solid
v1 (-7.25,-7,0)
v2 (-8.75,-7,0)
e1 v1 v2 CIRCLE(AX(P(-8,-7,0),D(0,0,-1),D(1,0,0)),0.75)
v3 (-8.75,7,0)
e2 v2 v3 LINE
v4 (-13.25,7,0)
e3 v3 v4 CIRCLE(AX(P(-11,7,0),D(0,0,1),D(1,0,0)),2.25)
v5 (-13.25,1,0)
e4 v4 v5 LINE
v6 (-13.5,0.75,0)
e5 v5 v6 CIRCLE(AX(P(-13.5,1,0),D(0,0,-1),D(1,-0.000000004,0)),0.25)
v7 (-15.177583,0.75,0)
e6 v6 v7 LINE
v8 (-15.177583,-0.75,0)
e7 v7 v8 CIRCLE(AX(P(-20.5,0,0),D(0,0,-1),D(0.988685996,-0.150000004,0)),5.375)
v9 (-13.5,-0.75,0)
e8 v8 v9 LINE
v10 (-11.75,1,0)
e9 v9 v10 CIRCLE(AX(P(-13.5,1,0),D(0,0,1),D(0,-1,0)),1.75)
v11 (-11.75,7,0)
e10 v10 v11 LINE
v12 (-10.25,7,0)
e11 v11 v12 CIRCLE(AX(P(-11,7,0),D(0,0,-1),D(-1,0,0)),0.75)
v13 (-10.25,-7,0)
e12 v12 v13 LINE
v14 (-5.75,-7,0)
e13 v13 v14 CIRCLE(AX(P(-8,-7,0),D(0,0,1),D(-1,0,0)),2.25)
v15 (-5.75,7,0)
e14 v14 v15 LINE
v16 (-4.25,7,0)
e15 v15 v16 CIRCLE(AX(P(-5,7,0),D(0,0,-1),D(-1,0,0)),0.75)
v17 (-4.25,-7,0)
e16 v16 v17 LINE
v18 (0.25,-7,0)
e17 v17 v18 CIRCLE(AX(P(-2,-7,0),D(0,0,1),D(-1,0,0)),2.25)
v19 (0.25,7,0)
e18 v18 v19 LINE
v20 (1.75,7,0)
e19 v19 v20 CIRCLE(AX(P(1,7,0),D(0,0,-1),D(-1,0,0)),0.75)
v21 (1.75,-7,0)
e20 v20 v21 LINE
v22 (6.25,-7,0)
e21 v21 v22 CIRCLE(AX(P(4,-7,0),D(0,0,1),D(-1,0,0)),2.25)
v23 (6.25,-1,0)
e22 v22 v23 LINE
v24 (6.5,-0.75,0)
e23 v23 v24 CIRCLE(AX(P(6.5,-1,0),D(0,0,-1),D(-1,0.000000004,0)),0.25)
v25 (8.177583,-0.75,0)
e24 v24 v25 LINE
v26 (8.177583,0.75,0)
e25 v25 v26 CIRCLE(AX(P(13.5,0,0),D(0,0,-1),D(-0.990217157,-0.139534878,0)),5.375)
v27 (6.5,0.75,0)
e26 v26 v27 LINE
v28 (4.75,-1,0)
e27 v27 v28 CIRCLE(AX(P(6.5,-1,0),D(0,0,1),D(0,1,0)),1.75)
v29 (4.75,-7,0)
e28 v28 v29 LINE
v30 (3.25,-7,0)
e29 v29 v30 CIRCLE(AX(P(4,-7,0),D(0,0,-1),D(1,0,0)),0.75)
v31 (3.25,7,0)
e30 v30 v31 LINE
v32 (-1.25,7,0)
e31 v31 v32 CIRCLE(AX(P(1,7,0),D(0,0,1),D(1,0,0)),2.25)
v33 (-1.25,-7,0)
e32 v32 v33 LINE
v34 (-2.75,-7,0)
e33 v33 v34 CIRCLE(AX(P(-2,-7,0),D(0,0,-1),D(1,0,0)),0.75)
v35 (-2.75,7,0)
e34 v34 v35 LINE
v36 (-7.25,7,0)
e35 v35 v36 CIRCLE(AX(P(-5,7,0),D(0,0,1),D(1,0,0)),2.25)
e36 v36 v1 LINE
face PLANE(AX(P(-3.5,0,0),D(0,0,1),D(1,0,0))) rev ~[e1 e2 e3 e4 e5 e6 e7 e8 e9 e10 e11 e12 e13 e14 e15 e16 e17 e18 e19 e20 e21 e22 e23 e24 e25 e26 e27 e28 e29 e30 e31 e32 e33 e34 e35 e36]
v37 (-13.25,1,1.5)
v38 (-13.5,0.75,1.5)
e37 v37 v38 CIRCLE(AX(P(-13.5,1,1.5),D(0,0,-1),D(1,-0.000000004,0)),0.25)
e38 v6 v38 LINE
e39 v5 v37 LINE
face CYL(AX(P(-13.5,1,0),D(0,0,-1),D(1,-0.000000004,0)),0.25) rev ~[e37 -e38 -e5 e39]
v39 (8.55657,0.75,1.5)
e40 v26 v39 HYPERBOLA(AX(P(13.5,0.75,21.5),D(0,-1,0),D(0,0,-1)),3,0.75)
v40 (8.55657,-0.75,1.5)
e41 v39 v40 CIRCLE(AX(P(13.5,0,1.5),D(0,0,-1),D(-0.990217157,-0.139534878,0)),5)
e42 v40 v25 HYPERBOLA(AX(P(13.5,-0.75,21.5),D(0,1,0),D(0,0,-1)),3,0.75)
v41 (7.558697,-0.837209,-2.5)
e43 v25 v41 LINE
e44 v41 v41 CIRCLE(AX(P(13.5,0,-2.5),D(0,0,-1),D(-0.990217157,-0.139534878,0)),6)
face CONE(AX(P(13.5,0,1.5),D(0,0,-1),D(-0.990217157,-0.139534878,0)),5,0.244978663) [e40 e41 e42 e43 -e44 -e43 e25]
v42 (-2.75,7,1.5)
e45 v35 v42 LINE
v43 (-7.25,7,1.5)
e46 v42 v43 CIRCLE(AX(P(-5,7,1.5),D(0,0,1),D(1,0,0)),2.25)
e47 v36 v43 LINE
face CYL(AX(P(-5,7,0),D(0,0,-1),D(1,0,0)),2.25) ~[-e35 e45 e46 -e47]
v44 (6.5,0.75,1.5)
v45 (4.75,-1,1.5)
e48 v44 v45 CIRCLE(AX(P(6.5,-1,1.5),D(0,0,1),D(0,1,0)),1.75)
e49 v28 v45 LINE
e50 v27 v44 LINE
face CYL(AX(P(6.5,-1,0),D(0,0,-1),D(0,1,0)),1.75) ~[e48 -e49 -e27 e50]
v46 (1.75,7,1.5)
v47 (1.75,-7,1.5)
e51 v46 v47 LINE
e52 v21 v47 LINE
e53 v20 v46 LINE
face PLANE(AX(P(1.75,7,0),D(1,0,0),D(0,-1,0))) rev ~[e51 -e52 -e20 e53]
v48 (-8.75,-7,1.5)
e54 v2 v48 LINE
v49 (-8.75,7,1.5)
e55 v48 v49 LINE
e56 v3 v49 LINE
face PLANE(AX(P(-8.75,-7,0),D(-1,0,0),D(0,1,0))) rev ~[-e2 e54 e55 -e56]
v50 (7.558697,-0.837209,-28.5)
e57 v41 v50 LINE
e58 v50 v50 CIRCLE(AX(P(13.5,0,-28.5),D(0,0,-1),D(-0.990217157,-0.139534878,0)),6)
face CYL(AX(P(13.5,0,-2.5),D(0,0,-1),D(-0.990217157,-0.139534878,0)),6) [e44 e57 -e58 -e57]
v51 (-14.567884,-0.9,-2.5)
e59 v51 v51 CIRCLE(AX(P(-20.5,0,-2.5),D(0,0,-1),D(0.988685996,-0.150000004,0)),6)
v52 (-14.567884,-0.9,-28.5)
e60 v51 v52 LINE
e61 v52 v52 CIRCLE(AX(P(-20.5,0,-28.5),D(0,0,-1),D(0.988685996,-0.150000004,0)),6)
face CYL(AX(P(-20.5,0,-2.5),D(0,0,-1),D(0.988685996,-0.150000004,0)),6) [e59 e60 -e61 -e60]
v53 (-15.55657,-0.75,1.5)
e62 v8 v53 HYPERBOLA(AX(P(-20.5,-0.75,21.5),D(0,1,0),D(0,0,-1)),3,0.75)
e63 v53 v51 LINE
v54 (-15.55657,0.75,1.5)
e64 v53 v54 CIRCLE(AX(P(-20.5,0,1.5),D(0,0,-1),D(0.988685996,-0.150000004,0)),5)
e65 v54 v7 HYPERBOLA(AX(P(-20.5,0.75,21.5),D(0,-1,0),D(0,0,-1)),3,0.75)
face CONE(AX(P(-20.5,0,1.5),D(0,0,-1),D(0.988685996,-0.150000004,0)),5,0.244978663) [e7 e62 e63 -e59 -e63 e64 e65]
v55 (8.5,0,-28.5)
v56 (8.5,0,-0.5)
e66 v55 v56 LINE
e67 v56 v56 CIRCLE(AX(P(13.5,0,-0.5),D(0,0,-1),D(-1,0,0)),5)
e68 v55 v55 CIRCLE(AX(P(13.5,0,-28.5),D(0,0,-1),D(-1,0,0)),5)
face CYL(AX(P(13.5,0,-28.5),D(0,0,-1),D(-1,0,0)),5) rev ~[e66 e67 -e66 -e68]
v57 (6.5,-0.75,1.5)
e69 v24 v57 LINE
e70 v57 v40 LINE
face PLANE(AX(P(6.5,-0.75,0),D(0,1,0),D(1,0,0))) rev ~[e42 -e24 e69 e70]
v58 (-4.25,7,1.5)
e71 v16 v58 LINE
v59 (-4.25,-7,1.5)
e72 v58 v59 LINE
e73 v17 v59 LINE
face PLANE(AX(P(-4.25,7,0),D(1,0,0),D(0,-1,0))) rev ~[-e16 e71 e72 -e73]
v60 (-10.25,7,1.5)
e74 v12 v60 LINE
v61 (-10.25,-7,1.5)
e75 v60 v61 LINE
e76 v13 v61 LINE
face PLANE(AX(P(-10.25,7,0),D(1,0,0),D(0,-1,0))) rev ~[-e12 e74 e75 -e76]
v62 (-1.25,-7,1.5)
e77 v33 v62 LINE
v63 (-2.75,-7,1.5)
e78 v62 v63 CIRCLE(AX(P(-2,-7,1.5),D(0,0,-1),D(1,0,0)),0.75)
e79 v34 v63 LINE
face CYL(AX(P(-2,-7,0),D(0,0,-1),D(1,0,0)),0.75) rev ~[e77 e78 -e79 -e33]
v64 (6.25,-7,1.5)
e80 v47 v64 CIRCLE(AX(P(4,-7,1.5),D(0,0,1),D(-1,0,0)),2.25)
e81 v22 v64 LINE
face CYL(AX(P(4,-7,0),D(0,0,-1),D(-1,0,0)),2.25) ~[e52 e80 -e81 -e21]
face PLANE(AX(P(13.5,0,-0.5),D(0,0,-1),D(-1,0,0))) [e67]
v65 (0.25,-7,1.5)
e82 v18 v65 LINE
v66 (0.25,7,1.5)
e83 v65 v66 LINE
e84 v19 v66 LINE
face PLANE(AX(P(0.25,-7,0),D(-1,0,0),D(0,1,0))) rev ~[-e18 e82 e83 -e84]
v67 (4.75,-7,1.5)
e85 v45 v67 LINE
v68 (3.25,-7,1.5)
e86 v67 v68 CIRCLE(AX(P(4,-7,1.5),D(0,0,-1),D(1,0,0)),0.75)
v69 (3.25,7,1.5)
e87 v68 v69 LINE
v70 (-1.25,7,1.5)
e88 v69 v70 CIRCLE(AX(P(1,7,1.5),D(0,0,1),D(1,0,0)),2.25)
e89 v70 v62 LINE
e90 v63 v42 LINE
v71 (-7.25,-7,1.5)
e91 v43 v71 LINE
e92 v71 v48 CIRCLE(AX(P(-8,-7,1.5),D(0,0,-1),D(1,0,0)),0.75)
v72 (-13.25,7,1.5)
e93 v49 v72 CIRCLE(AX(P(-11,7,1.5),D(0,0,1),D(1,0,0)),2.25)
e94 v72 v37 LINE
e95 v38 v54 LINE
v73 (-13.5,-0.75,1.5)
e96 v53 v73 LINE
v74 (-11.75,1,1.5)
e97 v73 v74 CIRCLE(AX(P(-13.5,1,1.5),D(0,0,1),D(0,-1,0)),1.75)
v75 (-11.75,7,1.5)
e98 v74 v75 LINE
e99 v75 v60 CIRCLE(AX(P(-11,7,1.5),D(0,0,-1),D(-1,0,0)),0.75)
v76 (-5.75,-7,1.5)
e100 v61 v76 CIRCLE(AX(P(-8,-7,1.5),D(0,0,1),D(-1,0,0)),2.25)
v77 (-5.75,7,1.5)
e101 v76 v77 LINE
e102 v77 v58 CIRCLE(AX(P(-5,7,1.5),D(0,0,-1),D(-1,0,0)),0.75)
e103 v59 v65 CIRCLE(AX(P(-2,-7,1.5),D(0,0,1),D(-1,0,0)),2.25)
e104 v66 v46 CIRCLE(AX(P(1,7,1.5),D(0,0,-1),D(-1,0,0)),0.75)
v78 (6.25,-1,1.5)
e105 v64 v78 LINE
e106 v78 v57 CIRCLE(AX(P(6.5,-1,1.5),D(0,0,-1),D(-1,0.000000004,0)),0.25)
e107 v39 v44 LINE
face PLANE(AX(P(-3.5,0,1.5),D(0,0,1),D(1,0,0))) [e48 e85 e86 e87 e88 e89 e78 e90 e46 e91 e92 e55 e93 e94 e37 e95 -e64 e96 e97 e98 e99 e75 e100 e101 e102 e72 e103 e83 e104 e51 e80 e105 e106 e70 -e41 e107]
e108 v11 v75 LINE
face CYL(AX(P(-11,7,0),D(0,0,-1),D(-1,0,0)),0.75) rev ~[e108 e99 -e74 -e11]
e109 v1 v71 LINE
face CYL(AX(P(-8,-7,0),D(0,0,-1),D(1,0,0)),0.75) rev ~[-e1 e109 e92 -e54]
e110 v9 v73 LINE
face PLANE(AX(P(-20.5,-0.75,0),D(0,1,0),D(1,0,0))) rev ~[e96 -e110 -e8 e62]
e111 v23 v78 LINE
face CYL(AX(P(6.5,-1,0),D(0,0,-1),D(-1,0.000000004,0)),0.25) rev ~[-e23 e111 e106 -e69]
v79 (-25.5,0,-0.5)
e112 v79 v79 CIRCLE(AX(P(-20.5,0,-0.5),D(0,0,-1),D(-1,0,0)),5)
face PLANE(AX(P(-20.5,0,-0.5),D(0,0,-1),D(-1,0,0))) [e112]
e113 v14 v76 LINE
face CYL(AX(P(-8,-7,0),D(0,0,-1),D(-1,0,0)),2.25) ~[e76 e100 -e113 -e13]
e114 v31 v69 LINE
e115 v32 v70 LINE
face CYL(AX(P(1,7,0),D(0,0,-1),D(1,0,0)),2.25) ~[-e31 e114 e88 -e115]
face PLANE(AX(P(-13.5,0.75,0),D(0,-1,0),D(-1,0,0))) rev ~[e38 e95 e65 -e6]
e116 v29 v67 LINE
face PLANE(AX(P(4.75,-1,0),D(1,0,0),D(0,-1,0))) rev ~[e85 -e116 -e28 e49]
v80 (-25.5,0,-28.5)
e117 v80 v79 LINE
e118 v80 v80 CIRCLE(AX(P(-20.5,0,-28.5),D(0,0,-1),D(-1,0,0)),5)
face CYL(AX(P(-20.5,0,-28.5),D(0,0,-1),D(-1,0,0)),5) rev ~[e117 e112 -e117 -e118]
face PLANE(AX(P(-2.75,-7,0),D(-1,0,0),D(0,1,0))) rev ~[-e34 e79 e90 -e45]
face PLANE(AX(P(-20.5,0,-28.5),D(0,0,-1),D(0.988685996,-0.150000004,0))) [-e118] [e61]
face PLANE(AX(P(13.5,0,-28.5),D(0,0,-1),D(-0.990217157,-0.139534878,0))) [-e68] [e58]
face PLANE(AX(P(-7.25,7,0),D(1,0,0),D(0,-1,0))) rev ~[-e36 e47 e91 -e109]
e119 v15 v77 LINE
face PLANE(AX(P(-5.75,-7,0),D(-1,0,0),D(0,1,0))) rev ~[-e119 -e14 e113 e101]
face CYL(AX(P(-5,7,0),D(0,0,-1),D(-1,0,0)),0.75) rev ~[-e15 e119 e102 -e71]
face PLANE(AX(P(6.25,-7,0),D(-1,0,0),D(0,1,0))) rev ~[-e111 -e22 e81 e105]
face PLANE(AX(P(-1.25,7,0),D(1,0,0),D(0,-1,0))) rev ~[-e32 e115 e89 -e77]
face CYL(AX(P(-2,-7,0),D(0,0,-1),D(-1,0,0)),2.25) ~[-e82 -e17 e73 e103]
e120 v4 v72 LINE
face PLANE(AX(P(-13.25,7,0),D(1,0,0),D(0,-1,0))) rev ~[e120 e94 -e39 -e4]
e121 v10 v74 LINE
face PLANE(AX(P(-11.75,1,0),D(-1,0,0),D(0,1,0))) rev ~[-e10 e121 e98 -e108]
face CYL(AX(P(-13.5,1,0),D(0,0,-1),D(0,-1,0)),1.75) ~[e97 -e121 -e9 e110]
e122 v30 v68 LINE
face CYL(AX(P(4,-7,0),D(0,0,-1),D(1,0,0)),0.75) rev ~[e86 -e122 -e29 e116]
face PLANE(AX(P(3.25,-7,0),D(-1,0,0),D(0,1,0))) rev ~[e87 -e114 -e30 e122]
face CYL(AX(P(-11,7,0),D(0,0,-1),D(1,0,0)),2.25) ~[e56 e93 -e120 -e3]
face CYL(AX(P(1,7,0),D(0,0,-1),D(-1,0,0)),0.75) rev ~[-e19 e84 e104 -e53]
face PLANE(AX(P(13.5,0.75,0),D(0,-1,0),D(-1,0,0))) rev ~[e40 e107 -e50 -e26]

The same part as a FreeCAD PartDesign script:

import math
import FreeCAD as App
import Part
import Sketcher

V = App.Vector
Q = App.Units.Quantity

doc = App.newDocument("Part")
body = doc.addObject("PartDesign::Body", "Body")

sketch1 = body.newObject("Sketcher::SketchObject", "Sketch")
sketch1.AttachmentSupport = (doc.getObject("XY_Plane"), [""])
sketch1.MapMode = "FlatFace"
sketch1.addGeometry([
    Part.LineSegment(V(-20.5, -0.75, 0), V(-13.5, -0.75, 0)),
    Part.ArcOfCircle(Part.Circle(V(-13.5, 1, 0), V(0, 0, 1), 1.75), math.radians(-90), math.radians(0)),
    Part.LineSegment(V(-11.75, 1, 0), V(-11.75, 7, 0)),
    Part.ArcOfCircle(Part.Circle(V(-11, 7, 0), V(0, 0, 1), 0.75), math.radians(0), math.radians(180)),
    Part.LineSegment(V(-10.25, 7, 0), V(-10.25, -7, 0)),
    Part.ArcOfCircle(Part.Circle(V(-8, -7, 0), V(0, 0, 1), 2.25), math.radians(180), math.radians(360)),
    Part.LineSegment(V(-5.75, -7, 0), V(-5.75, 7, 0)),
    Part.ArcOfCircle(Part.Circle(V(-5, 7, 0), V(0, 0, 1), 0.75), math.radians(0), math.radians(180)),
    Part.LineSegment(V(-4.25, 7, 0), V(-4.25, -7, 0)),
    Part.ArcOfCircle(Part.Circle(V(-2, -7, 0), V(0, 0, 1), 2.25), math.radians(180), math.radians(360)),
    Part.LineSegment(V(0.25, -7, 0), V(0.25, 7, 0)),
    Part.ArcOfCircle(Part.Circle(V(1, 7, 0), V(0, 0, 1), 0.75), math.radians(0), math.radians(180)),
    Part.LineSegment(V(1.75, 7, 0), V(1.75, -7, 0)),
    Part.ArcOfCircle(Part.Circle(V(4, -7, 0), V(0, 0, 1), 2.25), math.radians(180), math.radians(360)),
    Part.LineSegment(V(6.25, -7, 0), V(6.25, -1, 0)),
    Part.ArcOfCircle(Part.Circle(V(6.5, -1, 0), V(0, 0, 1), 0.25), math.radians(90), math.radians(180)),
    Part.LineSegment(V(6.5, -0.75, 0), V(13.5, -0.75, 0)),
    Part.ArcOfCircle(Part.Circle(V(13.5, 0, 0), V(0, 0, 1), 0.75), math.radians(-90), math.radians(90)),
    Part.LineSegment(V(13.5, 0.75, 0), V(6.5, 0.75, 0)),
    Part.ArcOfCircle(Part.Circle(V(6.5, -1, 0), V(0, 0, 1), 1.75), math.radians(90), math.radians(180)),
    Part.LineSegment(V(4.75, -1, 0), V(4.75, -7, 0)),
    Part.ArcOfCircle(Part.Circle(V(4, -7, 0), V(0, 0, 1), 0.75), math.radians(180), math.radians(360)),
    Part.LineSegment(V(3.25, -7, 0), V(3.25, 7, 0)),
    Part.ArcOfCircle(Part.Circle(V(1, 7, 0), V(0, 0, 1), 2.25), math.radians(0), math.radians(180)),
    Part.LineSegment(V(-1.25, 7, 0), V(-1.25, -7, 0)),
    Part.ArcOfCircle(Part.Circle(V(-2, -7, 0), V(0, 0, 1), 0.75), math.radians(180), math.radians(360)),
    Part.LineSegment(V(-2.75, -7, 0), V(-2.75, 7, 0)),
    Part.ArcOfCircle(Part.Circle(V(-5, 7, 0), V(0, 0, 1), 2.25), math.radians(0), math.radians(180)),
    Part.LineSegment(V(-7.25, 7, 0), V(-7.25, -7, 0)),
    Part.ArcOfCircle(Part.Circle(V(-8, -7, 0), V(0, 0, 1), 0.75), math.radians(180), math.radians(360)),
    Part.LineSegment(V(-8.75, -7, 0), V(-8.75, 7, 0)),
    Part.ArcOfCircle(Part.Circle(V(-11, 7, 0), V(0, 0, 1), 2.25), math.radians(0), math.radians(180)),
    Part.LineSegment(V(-13.25, 7, 0), V(-13.25, 1, 0)),
    Part.ArcOfCircle(Part.Circle(V(-13.5, 1, 0), V(0, 0, 1), 0.25), math.radians(-90), math.radians(0)),
    Part.LineSegment(V(-13.5, 0.75, 0), V(-20.5, 0.75, 0)),
    Part.ArcOfCircle(Part.Circle(V(-20.5, 0, 0), V(0, 0, 1), 0.75), math.radians(90), math.radians(270)),
], False)
sketch1.addConstraint([
    Sketcher.Constraint("Tangent", 0, 2, 1, 1),
    Sketcher.Constraint("Tangent", 1, 2, 2, 1),
    Sketcher.Constraint("Tangent", 2, 2, 3, 2),
    Sketcher.Constraint("Tangent", 3, 1, 4, 1),
    Sketcher.Constraint("Tangent", 4, 2, 5, 1),
    Sketcher.Constraint("Tangent", 5, 2, 6, 1),
    Sketcher.Constraint("Tangent", 6, 2, 7, 2),
    Sketcher.Constraint("Tangent", 7, 1, 8, 1),
    Sketcher.Constraint("Tangent", 8, 2, 9, 1),
    Sketcher.Constraint("Tangent", 9, 2, 10, 1),
    Sketcher.Constraint("Tangent", 10, 2, 11, 2),
    Sketcher.Constraint("Tangent", 11, 1, 12, 1),
    Sketcher.Constraint("Tangent", 12, 2, 13, 1),
    Sketcher.Constraint("Tangent", 13, 2, 14, 1),
    Sketcher.Constraint("Tangent", 14, 2, 15, 2),
    Sketcher.Constraint("Tangent", 15, 1, 16, 1),
    Sketcher.Constraint("Tangent", 16, 2, 17, 1),
    Sketcher.Constraint("Tangent", 17, 2, 18, 1),
    Sketcher.Constraint("Tangent", 18, 2, 19, 1),
    Sketcher.Constraint("Tangent", 19, 2, 20, 1),
    Sketcher.Constraint("Tangent", 20, 2, 21, 2),
    Sketcher.Constraint("Tangent", 21, 1, 22, 1),
    Sketcher.Constraint("Tangent", 22, 2, 23, 1),
    Sketcher.Constraint("Tangent", 23, 2, 24, 1),
    Sketcher.Constraint("Tangent", 24, 2, 25, 2),
    Sketcher.Constraint("Tangent", 25, 1, 26, 1),
    Sketcher.Constraint("Tangent", 26, 2, 27, 1),
    Sketcher.Constraint("Tangent", 27, 2, 28, 1),
    Sketcher.Constraint("Tangent", 28, 2, 29, 2),
    Sketcher.Constraint("Tangent", 29, 1, 30, 1),
    Sketcher.Constraint("Tangent", 30, 2, 31, 1),
    Sketcher.Constraint("Tangent", 31, 2, 32, 1),
    Sketcher.Constraint("Tangent", 32, 2, 33, 2),
    Sketcher.Constraint("Tangent", 33, 1, 34, 1),
    Sketcher.Constraint("Tangent", 34, 2, 35, 1),
    Sketcher.Constraint("Tangent", 35, 2, 0, 1),
    Sketcher.Constraint("Horizontal", 0),
    Sketcher.Constraint("Vertical", 2),
    Sketcher.Constraint("Vertical", 4),
    Sketcher.Constraint("Vertical", 6),
    Sketcher.Constraint("Vertical", 8),
    Sketcher.Constraint("Vertical", 10),
    Sketcher.Constraint("Vertical", 12),
    Sketcher.Constraint("Vertical", 14),
    Sketcher.Constraint("Horizontal", 16),
    Sketcher.Constraint("Horizontal", 18),
    Sketcher.Constraint("Vertical", 20),
    Sketcher.Constraint("Vertical", 22),
    Sketcher.Constraint("Vertical", 24),
    Sketcher.Constraint("Vertical", 26),
    Sketcher.Constraint("Vertical", 28),
    Sketcher.Constraint("Vertical", 30),
    Sketcher.Constraint("Vertical", 32),
    Sketcher.Constraint("Horizontal", 34),
    Sketcher.Constraint("Coincident", 19, 3, 15, 3),
    Sketcher.Constraint("Coincident", 21, 3, 13, 3),
    Sketcher.Constraint("Coincident", 23, 3, 11, 3),
    Sketcher.Constraint("Coincident", 25, 3, 9, 3),
    Sketcher.Constraint("Coincident", 27, 3, 7, 3),
    Sketcher.Constraint("Coincident", 29, 3, 5, 3),
    Sketcher.Constraint("Coincident", 31, 3, 3, 3),
    Sketcher.Constraint("Coincident", 33, 3, 1, 3),
    Sketcher.Constraint("Equal", 3, 7),
    Sketcher.Constraint("Equal", 5, 9),
    Sketcher.Constraint("Equal", 7, 11),
    Sketcher.Constraint("Equal", 9, 13),
    Sketcher.Constraint("Equal", 11, 17),
    Sketcher.Constraint("Equal", 1, 19),
    Sketcher.Constraint("Equal", 17, 21),
    Sketcher.Constraint("Symmetric", 0, 2, 17, 2, -1, 1),
    Sketcher.Constraint("PointOnObject", 17, 3, -1),
    Sketcher.Constraint("Horizontal", 3, 3, 7, 3),
    Sketcher.Constraint("Horizontal", 5, 3, 9, 3),
    Sketcher.Constraint("Horizontal", 7, 3, 11, 3),
    Sketcher.Constraint("Horizontal", 9, 3, 13, 3),
    Sketcher.Constraint("Equal", 0, 16),
    Sketcher.Constraint("Equal", 2, 14),
    Sketcher.Constraint("DistanceX", 0, 1, 0, 2, Q("7 mm")),
    Sketcher.Constraint("DistanceY", 2, 1, 2, 2, Q("6 mm")),
    Sketcher.Constraint("DistanceY", 4, 2, 4, 1, Q("14 mm")),
    Sketcher.Constraint("Radius", 1, Q("1.75 mm")),
])
pad1 = body.newObject("PartDesign::Pad", "Pad")
pad1.Profile = sketch1
pad1.Length = 1.5

sketch2 = body.newObject("Sketcher::SketchObject", "Sketch001")
sketch2.AttachmentSupport = (doc.getObject("XZ_Plane"), [""])
sketch2.MapMode = "FlatFace"
sketch2.addGeometry([
    Part.LineSegment(V(-25.5, 1.5, 0), V(-20.5, 1.5, 0)),
    Part.LineSegment(V(-20.5, 1.5, 0), V(-20.5, -28.5, 0)),
    Part.LineSegment(V(-20.5, -28.5, 0), V(-26.5, -28.5, 0)),
    Part.LineSegment(V(-26.5, -28.5, 0), V(-26.5, -2.5, 0)),
    Part.LineSegment(V(-26.5, -2.5, 0), V(-25.5, 1.5, 0)),
], False)
sketch2.addGeometry(Part.LineSegment(V(-20.5, 1.5, 0), V(-20.5, -28.5, 0)), True)
sketch2.addConstraint([
    Sketcher.Constraint("Coincident", 0, 2, 1, 1),
    Sketcher.Constraint("Coincident", 1, 2, 2, 1),
    Sketcher.Constraint("Coincident", 2, 2, 3, 1),
    Sketcher.Constraint("Coincident", 3, 2, 4, 1),
    Sketcher.Constraint("Coincident", 4, 2, 0, 1),
    Sketcher.Constraint("Horizontal", 0),
    Sketcher.Constraint("Vertical", 1),
    Sketcher.Constraint("Horizontal", 2),
    Sketcher.Constraint("Vertical", 3),
    Sketcher.Constraint("Vertical", 5),
    Sketcher.Constraint("Coincident", 5, 1, 0, 2),
    Sketcher.Constraint("Horizontal", 2, 2, 5, 2),
    Sketcher.Constraint("DistanceX", 0, 1, 0, 2, Q("5 mm")),
    Sketcher.Constraint("DistanceX", 2, 2, 2, 1, Q("6 mm")),
    Sketcher.Constraint("DistanceY", 1, 2, 1, 1, Q("30 mm")),
    Sketcher.Constraint("DistanceY", 3, 1, 3, 2, Q("26 mm")),
    Sketcher.Constraint("DistanceX", 0, 2, -1, 1, Q("20.5 mm")),
    Sketcher.Constraint("DistanceY", -1, 1, 0, 2, Q("1.5 mm")),
])
revolution = body.newObject("PartDesign::Revolution", "Revolution")
revolution.Profile = sketch2
revolution.ReferenceAxis = (sketch2, ["Axis0"])
revolution.Angle = 360

sketch3 = body.newObject("Sketcher::SketchObject", "Sketch002")
sketch3.AttachmentSupport = (doc.getObject("XZ_Plane"), [""])
sketch3.MapMode = "FlatFace"
sketch3.addGeometry([
    Part.LineSegment(V(13.5, 1.5, 0), V(18.5, 1.5, 0)),
    Part.LineSegment(V(18.5, 1.5, 0), V(19.5, -2.5, 0)),
    Part.LineSegment(V(19.5, -2.5, 0), V(19.5, -28.5, 0)),
    Part.LineSegment(V(19.5, -28.5, 0), V(13.5, -28.5, 0)),
    Part.LineSegment(V(13.5, -28.5, 0), V(13.5, 1.5, 0)),
], False)
sketch3.addGeometry(Part.LineSegment(V(13.5, 1.5, 0), V(13.5, -28.5, 0)), True)
sketch3.addConstraint([
    Sketcher.Constraint("Coincident", 0, 2, 1, 1),
    Sketcher.Constraint("Coincident", 1, 2, 2, 1),
    Sketcher.Constraint("Coincident", 2, 2, 3, 1),
    Sketcher.Constraint("Coincident", 3, 2, 4, 1),
    Sketcher.Constraint("Coincident", 4, 2, 0, 1),
    Sketcher.Constraint("Horizontal", 0),
    Sketcher.Constraint("Vertical", 2),
    Sketcher.Constraint("Horizontal", 3),
    Sketcher.Constraint("Vertical", 4),
    Sketcher.Constraint("Vertical", 5),
    Sketcher.Constraint("Coincident", 5, 1, 4, 2),
    Sketcher.Constraint("Horizontal", 2, 2, 5, 2),
    Sketcher.Constraint("DistanceX", 0, 1, 0, 2, Q("5 mm")),
    Sketcher.Constraint("DistanceX", 3, 2, 3, 1, Q("6 mm")),
    Sketcher.Constraint("DistanceY", 2, 2, 2, 1, Q("26 mm")),
    Sketcher.Constraint("DistanceY", 4, 1, 4, 2, Q("30 mm")),
    Sketcher.Constraint("DistanceX", -1, 1, 0, 2, Q("18.5 mm")),
    Sketcher.Constraint("DistanceY", -1, 1, 0, 2, Q("1.5 mm")),
])
revolution2 = body.newObject("PartDesign::Revolution", "Revolution001")
revolution2.Profile = sketch3
revolution2.ReferenceAxis = (sketch3, ["Axis0"])
revolution2.Angle = 360

sketch4 = body.newObject("Sketcher::SketchObject", "Sketch003")
sketch4.AttachmentSupport = (doc.getObject("XY_Plane"), [""])
sketch4.MapMode = "FlatFace"
sketch4.AttachmentOffset = App.Placement(V(0, 0, -28.5), App.Rotation())
sketch4.addGeometry([
    Part.Circle(V(14, 0, 0), V(0, 0, 1), 5),
    Part.Circle(V(-20, 0, 0), V(0, 0, 1), 5),
], False)
sketch4.addConstraint([
    Sketcher.Constraint("Equal", 0, 1),
    Sketcher.Constraint("PointOnObject", 0, 3, -1),
    Sketcher.Constraint("PointOnObject", 1, 3, -1),
    Sketcher.Constraint("Diameter", 0, Q("10 mm")),
    Sketcher.Constraint("DistanceX", 1, 3, 0, 3, Q("34 mm")),
    Sketcher.Constraint("DistanceX", -1, 1, 0, 3, Q("13.5 mm")),
])
pocket1 = body.newObject("PartDesign::Pocket", "Pocket")
pocket1.Profile = sketch4
pocket1.Length = 28
pocket1.Reversed = True

doc.recompute()
